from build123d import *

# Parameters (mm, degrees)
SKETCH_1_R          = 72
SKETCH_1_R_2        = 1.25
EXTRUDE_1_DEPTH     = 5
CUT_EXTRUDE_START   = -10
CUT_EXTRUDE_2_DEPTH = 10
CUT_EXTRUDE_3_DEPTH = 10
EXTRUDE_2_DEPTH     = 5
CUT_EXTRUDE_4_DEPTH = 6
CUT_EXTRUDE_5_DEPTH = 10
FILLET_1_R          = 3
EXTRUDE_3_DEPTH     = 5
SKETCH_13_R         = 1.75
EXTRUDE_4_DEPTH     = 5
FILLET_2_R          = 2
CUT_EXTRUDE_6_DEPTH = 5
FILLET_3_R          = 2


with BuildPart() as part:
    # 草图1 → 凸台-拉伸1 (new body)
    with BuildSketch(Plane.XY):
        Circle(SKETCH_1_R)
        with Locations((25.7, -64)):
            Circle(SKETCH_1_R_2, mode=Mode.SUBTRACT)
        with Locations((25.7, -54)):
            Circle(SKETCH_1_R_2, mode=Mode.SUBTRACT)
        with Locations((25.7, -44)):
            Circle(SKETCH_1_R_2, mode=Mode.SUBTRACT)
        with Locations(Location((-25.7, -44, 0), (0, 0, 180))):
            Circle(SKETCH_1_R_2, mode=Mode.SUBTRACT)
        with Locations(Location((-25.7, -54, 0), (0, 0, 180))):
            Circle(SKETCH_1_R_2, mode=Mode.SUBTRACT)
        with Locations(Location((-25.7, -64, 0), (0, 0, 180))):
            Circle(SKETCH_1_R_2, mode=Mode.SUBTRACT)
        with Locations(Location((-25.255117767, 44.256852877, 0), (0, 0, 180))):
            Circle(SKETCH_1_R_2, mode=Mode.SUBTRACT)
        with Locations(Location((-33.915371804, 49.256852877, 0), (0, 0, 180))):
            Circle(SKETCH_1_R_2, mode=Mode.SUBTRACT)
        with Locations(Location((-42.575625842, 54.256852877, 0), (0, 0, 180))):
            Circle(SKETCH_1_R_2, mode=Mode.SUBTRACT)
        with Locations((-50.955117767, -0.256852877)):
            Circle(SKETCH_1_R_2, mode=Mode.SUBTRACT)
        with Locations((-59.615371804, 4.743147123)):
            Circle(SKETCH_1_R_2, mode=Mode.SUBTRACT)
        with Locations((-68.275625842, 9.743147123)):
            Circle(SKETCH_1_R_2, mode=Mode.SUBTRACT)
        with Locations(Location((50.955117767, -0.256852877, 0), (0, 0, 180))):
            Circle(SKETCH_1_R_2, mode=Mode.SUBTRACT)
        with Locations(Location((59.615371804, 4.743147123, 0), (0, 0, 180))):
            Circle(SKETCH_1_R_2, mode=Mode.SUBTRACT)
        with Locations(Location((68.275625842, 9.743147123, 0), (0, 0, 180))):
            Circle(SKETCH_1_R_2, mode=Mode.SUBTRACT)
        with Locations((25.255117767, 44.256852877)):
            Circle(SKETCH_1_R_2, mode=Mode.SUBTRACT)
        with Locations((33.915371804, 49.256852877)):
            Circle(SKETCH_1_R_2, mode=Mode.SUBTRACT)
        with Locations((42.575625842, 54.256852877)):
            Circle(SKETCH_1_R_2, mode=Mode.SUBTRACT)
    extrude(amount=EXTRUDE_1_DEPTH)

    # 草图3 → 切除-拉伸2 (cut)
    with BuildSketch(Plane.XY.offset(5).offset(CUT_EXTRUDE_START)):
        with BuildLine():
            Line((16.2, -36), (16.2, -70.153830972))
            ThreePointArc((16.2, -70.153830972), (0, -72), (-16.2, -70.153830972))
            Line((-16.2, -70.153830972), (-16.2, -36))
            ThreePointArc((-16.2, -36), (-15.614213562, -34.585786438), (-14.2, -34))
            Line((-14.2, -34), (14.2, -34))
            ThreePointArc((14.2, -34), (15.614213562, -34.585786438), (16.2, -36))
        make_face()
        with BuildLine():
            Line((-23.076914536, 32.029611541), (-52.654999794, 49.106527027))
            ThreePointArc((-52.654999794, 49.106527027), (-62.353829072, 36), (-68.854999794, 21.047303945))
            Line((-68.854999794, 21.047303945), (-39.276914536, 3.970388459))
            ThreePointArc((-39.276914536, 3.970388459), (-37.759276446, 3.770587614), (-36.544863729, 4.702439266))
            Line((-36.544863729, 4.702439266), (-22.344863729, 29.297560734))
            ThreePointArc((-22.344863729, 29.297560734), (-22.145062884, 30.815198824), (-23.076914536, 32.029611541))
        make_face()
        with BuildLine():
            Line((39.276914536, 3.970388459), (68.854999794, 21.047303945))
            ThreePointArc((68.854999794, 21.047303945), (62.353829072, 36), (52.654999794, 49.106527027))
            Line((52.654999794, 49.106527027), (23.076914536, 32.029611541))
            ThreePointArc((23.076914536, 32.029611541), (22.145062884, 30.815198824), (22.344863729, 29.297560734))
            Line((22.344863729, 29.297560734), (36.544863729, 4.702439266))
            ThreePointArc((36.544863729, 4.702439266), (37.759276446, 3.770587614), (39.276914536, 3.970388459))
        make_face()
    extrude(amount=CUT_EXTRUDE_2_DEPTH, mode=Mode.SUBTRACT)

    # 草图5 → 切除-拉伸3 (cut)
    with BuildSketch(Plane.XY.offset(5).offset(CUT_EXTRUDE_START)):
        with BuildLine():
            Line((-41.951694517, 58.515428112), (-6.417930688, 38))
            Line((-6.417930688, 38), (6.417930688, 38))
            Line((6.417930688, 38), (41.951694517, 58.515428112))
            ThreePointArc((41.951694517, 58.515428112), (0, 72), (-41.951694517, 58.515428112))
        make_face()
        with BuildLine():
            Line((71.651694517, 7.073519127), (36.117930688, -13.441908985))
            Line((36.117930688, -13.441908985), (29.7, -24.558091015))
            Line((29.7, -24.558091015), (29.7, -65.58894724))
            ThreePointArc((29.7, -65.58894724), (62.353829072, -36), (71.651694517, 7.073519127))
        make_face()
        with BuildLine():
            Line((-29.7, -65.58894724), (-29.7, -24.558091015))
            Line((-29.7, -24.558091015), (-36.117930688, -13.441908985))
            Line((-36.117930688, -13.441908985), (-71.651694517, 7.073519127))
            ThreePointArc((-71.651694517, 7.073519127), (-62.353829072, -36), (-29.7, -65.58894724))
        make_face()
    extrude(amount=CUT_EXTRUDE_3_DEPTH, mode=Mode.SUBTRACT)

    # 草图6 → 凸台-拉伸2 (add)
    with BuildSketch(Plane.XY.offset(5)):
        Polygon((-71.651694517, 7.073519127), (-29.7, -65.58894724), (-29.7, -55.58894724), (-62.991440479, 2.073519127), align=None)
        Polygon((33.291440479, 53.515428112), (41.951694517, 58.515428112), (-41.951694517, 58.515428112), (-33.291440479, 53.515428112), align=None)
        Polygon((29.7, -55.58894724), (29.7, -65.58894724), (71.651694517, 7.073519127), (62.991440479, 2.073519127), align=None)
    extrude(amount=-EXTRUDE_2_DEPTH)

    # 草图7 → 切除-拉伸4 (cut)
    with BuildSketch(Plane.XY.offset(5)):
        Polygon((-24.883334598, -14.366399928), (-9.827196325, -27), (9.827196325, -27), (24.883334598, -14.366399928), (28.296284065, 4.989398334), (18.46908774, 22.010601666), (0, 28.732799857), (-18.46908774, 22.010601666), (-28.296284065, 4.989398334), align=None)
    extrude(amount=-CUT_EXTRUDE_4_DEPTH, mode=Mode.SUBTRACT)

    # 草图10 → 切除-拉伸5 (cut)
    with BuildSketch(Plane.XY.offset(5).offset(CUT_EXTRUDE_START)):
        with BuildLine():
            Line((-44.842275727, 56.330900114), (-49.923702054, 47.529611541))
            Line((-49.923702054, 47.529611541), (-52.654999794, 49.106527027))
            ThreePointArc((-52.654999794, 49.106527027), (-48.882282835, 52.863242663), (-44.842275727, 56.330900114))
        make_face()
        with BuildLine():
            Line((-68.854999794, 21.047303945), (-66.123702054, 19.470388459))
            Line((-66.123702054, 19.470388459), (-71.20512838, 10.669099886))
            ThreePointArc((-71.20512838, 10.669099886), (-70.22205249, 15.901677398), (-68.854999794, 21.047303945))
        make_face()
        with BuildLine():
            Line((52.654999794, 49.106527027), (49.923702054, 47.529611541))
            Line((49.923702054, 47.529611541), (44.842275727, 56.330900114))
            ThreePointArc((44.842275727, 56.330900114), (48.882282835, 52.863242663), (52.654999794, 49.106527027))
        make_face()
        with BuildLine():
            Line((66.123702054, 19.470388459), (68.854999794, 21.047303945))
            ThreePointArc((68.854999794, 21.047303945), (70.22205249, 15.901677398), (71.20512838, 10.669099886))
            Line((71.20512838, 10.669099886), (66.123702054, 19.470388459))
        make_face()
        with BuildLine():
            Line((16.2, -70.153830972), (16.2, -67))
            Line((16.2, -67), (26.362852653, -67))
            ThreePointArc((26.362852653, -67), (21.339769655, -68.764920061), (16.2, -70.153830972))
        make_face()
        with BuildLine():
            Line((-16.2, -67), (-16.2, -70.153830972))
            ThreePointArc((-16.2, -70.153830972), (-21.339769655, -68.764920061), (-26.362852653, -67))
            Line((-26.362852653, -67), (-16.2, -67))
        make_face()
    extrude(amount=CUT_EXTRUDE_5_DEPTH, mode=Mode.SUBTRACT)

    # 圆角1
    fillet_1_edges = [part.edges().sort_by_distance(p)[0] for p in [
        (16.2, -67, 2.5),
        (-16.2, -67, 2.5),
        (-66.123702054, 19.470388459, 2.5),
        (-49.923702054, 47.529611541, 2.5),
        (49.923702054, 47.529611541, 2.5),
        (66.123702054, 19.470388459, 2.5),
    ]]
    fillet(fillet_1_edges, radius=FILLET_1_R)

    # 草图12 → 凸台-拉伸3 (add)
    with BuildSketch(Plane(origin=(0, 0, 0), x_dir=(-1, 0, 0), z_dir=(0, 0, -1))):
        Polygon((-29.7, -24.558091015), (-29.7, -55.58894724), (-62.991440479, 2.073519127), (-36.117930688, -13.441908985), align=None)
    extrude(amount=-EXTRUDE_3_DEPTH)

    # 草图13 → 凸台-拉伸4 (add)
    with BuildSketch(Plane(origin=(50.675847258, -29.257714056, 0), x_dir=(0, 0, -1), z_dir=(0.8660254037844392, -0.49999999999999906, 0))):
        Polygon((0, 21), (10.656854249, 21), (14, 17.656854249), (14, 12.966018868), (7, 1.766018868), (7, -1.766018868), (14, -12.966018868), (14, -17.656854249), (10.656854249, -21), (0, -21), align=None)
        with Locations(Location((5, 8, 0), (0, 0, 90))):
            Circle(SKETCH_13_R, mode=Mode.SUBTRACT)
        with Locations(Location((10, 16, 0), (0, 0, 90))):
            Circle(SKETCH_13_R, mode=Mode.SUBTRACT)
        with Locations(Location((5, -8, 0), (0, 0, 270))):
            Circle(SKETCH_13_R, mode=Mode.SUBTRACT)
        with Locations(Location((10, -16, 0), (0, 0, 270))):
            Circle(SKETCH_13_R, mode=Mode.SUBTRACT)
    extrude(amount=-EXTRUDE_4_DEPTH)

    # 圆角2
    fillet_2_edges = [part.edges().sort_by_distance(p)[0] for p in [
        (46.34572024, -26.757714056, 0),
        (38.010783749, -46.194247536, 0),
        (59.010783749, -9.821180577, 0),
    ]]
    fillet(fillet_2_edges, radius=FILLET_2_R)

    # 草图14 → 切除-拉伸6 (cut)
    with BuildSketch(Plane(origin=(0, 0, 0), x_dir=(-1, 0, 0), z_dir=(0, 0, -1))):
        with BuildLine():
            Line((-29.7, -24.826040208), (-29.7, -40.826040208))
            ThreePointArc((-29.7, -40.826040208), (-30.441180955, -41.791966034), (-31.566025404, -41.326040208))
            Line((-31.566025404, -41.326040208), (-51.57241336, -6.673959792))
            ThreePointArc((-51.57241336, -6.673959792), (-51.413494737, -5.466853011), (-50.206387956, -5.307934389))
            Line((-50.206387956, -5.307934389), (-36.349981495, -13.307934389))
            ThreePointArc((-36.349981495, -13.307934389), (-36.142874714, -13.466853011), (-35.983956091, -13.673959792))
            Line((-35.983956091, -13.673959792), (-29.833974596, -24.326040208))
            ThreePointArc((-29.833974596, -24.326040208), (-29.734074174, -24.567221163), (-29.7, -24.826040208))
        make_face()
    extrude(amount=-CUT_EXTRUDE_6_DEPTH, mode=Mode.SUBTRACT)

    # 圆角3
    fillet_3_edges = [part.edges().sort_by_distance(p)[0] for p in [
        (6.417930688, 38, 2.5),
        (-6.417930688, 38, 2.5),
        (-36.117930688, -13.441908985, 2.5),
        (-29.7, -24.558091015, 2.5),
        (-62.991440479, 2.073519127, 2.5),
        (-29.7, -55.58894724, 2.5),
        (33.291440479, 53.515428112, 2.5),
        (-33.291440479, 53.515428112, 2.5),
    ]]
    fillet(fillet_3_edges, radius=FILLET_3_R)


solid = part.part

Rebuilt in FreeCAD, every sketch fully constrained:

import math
import FreeCAD as App
import Part
import Sketcher

V = App.Vector
Q = App.Units.Quantity


def edges_at(feature, points):
    """Names of the edges that pass closest to the given points."""
    edges = feature.Shape.Edges
    near = lambda p: min(range(len(edges)), key=lambda i: edges[i].distToShape(Part.Vertex(*p))[0])
    return sorted({f"Edge{near(p) + 1}" for p in points})


def add_polygon(sketch, points):
    """Adds a closed chain of lines whose ends are joined by coincident constraints."""
    first, n = sketch.GeometryCount, len(points)
    for a, b in zip(points, points[1:] + points[:1]):
        sketch.addGeometry(Part.LineSegment(App.Vector(*a, 0), App.Vector(*b, 0)), False)
    for i in range(n):
        sketch.addConstraint(Sketcher.Constraint("Coincident", first + i, 2, first + (i + 1) % n, 1))

doc = App.newDocument("Part")
body = doc.addObject("PartDesign::Body", "Body")

# Sketch on XY plane
sketch1 = doc.addObject("Sketcher::SketchObject", "Sketch")
body.addObject(sketch1)
sketch1.AttachmentSupport = (doc.XY_Plane, [""])
sketch1.MapMode = "FlatFace"
sketch1.addGeometry(Part.Circle(V(0, 0, 0), V(0, 0, 1), 72), False)
sketch1.addGeometry(Part.Circle(V(-25.7, -64, 0), V(0, 0, 1), 1.2), False)
sketch1.addGeometry(Part.Circle(V(-25.7, -54, 0), V(0, 0, 1), 1.2), False)
sketch1.addGeometry(Part.Circle(V(-25.7, -44, 0), V(0, 0, 1), 1.2), False)
sketch1.addGeometry(Part.Circle(V(25.7, -64, 0), V(0, 0, 1), 1.2), False)
sketch1.addGeometry(Part.Circle(V(25.7, -54, 0), V(0, 0, 1), 1.2), False)
sketch1.addGeometry(Part.Circle(V(25.7, -44, 0), V(0, 0, 1), 1.2), False)
sketch1.addGeometry(Part.Circle(V(-68.3, 9.7, 0), V(0, 0, 1), 1.2), False)
sketch1.addGeometry(Part.Circle(V(-59.6, 4.7, 0), V(0, 0, 1), 1.2), False)
sketch1.addGeometry(Part.Circle(V(-51, -0.3, 0), V(0, 0, 1), 1.2), False)
sketch1.addGeometry(Part.Circle(V(-42.6, 54.3, 0), V(0, 0, 1), 1.2), False)
sketch1.addGeometry(Part.Circle(V(-25.3, 44.3, 0), V(0, 0, 1), 1.2), False)
sketch1.addGeometry(Part.Circle(V(-33.9, 49.3, 0), V(0, 0, 1), 1.2), False)
sketch1.addGeometry(Part.Circle(V(51, -0.3, 0), V(0, 0, 1), 1.2), False)
sketch1.addGeometry(Part.Circle(V(59.6, 4.7, 0), V(0, 0, 1), 1.2), False)
sketch1.addGeometry(Part.Circle(V(68.3, 9.7, 0), V(0, 0, 1), 1.2), False)
sketch1.addGeometry(Part.Circle(V(25.3, 44.3, 0), V(0, 0, 1), 1.2), False)
sketch1.addGeometry(Part.Circle(V(33.9, 49.3, 0), V(0, 0, 1), 1.2), False)
sketch1.addGeometry(Part.Circle(V(42.6, 54.3, 0), V(0, 0, 1), 1.2), False)
sketch1.addConstraint(Sketcher.Constraint("Coincident", 0, 3, -1, 1))
sketch1.addConstraint(Sketcher.Constraint("Equal", 1, 2))
sketch1.addConstraint(Sketcher.Constraint("Equal", 2, 3))
sketch1.addConstraint(Sketcher.Constraint("Equal", 3, 4))
sketch1.addConstraint(Sketcher.Constraint("Equal", 4, 5))
sketch1.addConstraint(Sketcher.Constraint("Equal", 5, 6))
sketch1.addConstraint(Sketcher.Constraint("Equal", 6, 7))
sketch1.addConstraint(Sketcher.Constraint("Equal", 7, 8))
sketch1.addConstraint(Sketcher.Constraint("Equal", 8, 9))
sketch1.addConstraint(Sketcher.Constraint("Equal", 9, 10))
sketch1.addConstraint(Sketcher.Constraint("Equal", 10, 11))
sketch1.addConstraint(Sketcher.Constraint("Equal", 11, 12))
sketch1.addConstraint(Sketcher.Constraint("Equal", 12, 13))
sketch1.addConstraint(Sketcher.Constraint("Equal", 13, 14))
sketch1.addConstraint(Sketcher.Constraint("Equal", 14, 15))
sketch1.addConstraint(Sketcher.Constraint("Equal", 15, 16))
sketch1.addConstraint(Sketcher.Constraint("Equal", 16, 17))
sketch1.addConstraint(Sketcher.Constraint("Equal", 17, 18))
sketch1.addConstraint(Sketcher.Constraint("Symmetric", 1, 3, 4, 3, -2))
sketch1.addConstraint(Sketcher.Constraint("Symmetric", 2, 3, 5, 3, -2))
sketch1.addConstraint(Sketcher.Constraint("Symmetric", 3, 3, 6, 3, -2))
sketch1.addConstraint(Sketcher.Constraint("Symmetric", 9, 3, 13, 3, -2))
sketch1.addConstraint(Sketcher.Constraint("Symmetric", 8, 3, 14, 3, -2))
sketch1.addConstraint(Sketcher.Constraint("Symmetric", 7, 3, 15, 3, -2))
sketch1.addConstraint(Sketcher.Constraint("Symmetric", 11, 3, 16, 3, -2))
sketch1.addConstraint(Sketcher.Constraint("Symmetric", 12, 3, 17, 3, -2))
sketch1.addConstraint(Sketcher.Constraint("Symmetric", 10, 3, 18, 3, -2))
sketch1.addConstraint(Sketcher.Constraint("Vertical", 1, 3, 2, 3))
sketch1.addConstraint(Sketcher.Constraint("Vertical", 2, 3, 3, 3))
sketch1.addConstraint(Sketcher.Constraint("Diameter", 0, Q("144 mm")))
sketch1.addConstraint(Sketcher.Constraint("Diameter", 1, Q("2.5 mm")))
sketch1.addConstraint(Sketcher.Constraint("DistanceY", 1, 3, -1, 1, Q("64 mm")))
sketch1.addConstraint(Sketcher.Constraint("DistanceY", 2, 3, -1, 1, Q("54 mm")))
sketch1.addConstraint(Sketcher.Constraint("DistanceY", 3, 3, -1, 1, Q("44 mm")))
sketch1.addConstraint(Sketcher.Constraint("DistanceY", 8, 3, 7, 3, Q("5 mm")))
sketch1.addConstraint(Sketcher.Constraint("DistanceY", 9, 3, 8, 3, Q("5 mm")))
sketch1.addConstraint(Sketcher.Constraint("DistanceY", 11, 3, 10, 3, Q("10 mm")))
sketch1.addConstraint(Sketcher.Constraint("DistanceY", 11, 3, 12, 3, Q("5 mm")))
sketch1.addConstraint(Sketcher.Constraint("DistanceX", 1, 3, -1, 1, Q("25.7 mm")))
sketch1.addConstraint(Sketcher.Constraint("DistanceX", 7, 3, 10, 3, Q("25.7 mm")))
sketch1.addConstraint(Sketcher.Constraint("DistanceX", 9, 3, 11, 3, Q("25.7 mm")))
sketch1.addConstraint(Sketcher.Constraint("DistanceX", 8, 3, 12, 3, Q("25.7 mm")))
sketch1.addConstraint(Sketcher.Constraint("DistanceX", 8, 3, -1, 1, Q("59.615372 mm")))
sketch1.addConstraint(Sketcher.Constraint("DistanceX", 7, 3, 9, 3, Q("17.320508 mm")))
sketch1.addConstraint(Sketcher.Constraint("DistanceX", 11, 3, 17, 3, Q("59.17049 mm")))
sketch1.addConstraint(Sketcher.Constraint("DistanceY", -1, 1, 7, 3, Q("9.743147 mm")))
sketch1.addConstraint(Sketcher.Constraint("DistanceY", -1, 1, 10, 3, Q("54.256853 mm")))
pad1 = doc.addObject("PartDesign::Pad", "Pad")
body.addObject(pad1)
pad1.Profile = sketch1
pad1.Length = 5

# Sketch on XY plane
sketch2 = doc.addObject("Sketcher::SketchObject", "Sketch001")
body.addObject(sketch2)
sketch2.AttachmentSupport = (doc.XY_Plane, [""])
sketch2.MapMode = "FlatFace"
sketch2.AttachmentOffset = App.Placement(V(0, 0, -5), App.Rotation())
sketch2.addGeometry(Part.LineSegment(V(16.2, -70.2, 0), V(16.2, -36, 0)), False)
sketch2.addGeometry(Part.ArcOfCircle(Part.Circle(V(14.2, -36, 0), V(0, 0, 1), 2), math.radians(0), math.radians(90)), False)
sketch2.addGeometry(Part.LineSegment(V(14.2, -34, 0), V(-14.2, -34, 0)), False)
sketch2.addGeometry(Part.ArcOfCircle(Part.Circle(V(-14.2, -36, 0), V(0, 0, 1), 2), math.radians(90), math.radians(180)), False)
sketch2.addGeometry(Part.LineSegment(V(-16.2, -36, 0), V(-16.2, -70.2, 0)), False)
sketch2.addGeometry(Part.ArcOfCircle(Part.Circle(V(0, 0, 0), V(0, 0, 1), 72), math.radians(-103), math.radians(-77)), False)
sketch2.addGeometry(Part.LineSegment(V(-23.1, 32, 0), V(-52.7, 49.1, 0)), False)
sketch2.addGeometry(Part.ArcOfCircle(Part.Circle(V(0, 0, 0), V(0, 0, 1), 72), math.radians(137), math.radians(163)), False)
sketch2.addGeometry(Part.LineSegment(V(-68.9, 21, 0), V(-39.3, 4, 0)), False)
sketch2.addGeometry(Part.ArcOfCircle(Part.Circle(V(-38.3, 5.7, 0), V(0, 0, 1), 2), math.radians(-120), math.radians(-30)), False)
sketch2.addGeometry(Part.LineSegment(V(-36.5, 4.7, 0), V(-22.3, 29.3, 0)), False)
sketch2.addGeometry(Part.ArcOfCircle(Part.Circle(V(-24.1, 30.3, 0), V(0, 0, 1), 2), math.radians(-30), math.radians(60)), False)
sketch2.addGeometry(Part.LineSegment(V(39.3, 4, 0), V(68.9, 21, 0)), False)
sketch2.addGeometry(Part.ArcOfCircle(Part.Circle(V(0, 0, 0), V(0, 0, 1), 72), math.radians(17), math.radians(43)), False)
sketch2.addGeometry(Part.LineSegment(V(52.7, 49.1, 0), V(23.1, 32, 0)), False)
sketch2.addGeometry(Part.ArcOfCircle(Part.Circle(V(24.1, 30.3, 0), V(0, 0, 1), 2), math.radians(120), math.radians(210)), False)
sketch2.addGeometry(Part.LineSegment(V(22.3, 29.3, 0), V(36.5, 4.7, 0)), False)
sketch2.addGeometry(Part.ArcOfCircle(Part.Circle(V(38.3, 5.7, 0), V(0, 0, 1), 2), math.radians(-150), math.radians(-60)), False)
sketch2.addConstraint(Sketcher.Constraint("Tangent", 0, 2, 1, 1))
sketch2.addConstraint(Sketcher.Constraint("Tangent", 1, 2, 2, 1))
sketch2.addConstraint(Sketcher.Constraint("Tangent", 2, 2, 3, 1))
sketch2.addConstraint(Sketcher.Constraint("Tangent", 3, 2, 4, 1))
sketch2.addConstraint(Sketcher.Constraint("Coincident", 4, 2, 5, 1))
sketch2.addConstraint(Sketcher.Constraint("Coincident", 5, 2, 0, 1))
sketch2.addConstraint(Sketcher.Constraint("Coincident", 6, 2, 7, 1))
sketch2.addConstraint(Sketcher.Constraint("Coincident", 7, 2, 8, 1))
sketch2.addConstraint(Sketcher.Constraint("Tangent", 8, 2, 9, 1))
sketch2.addConstraint(Sketcher.Constraint("Tangent", 9, 2, 10, 1))
sketch2.addConstraint(Sketcher.Constraint("Tangent", 10, 2, 11, 1))
sketch2.addConstraint(Sketcher.Constraint("Tangent", 11, 2, 6, 1))
sketch2.addConstraint(Sketcher.Constraint("Coincident", 12, 2, 13, 1))
sketch2.addConstraint(Sketcher.Constraint("Coincident", 13, 2, 14, 1))
sketch2.addConstraint(Sketcher.Constraint("Tangent", 14, 2, 15, 1))
sketch2.addConstraint(Sketcher.Constraint("Tangent", 15, 2, 16, 1))
sketch2.addConstraint(Sketcher.Constraint("Tangent", 16, 2, 17, 1))
sketch2.addConstraint(Sketcher.Constraint("Tangent", 17, 2, 12, 1))
sketch2.addConstraint(Sketcher.Constraint("Vertical", 0))
sketch2.addConstraint(Sketcher.Constraint("Horizontal", 2))
sketch2.addConstraint(Sketcher.Constraint("Vertical", 4))
sketch2.addConstraint(Sketcher.Constraint("Coincident", 5, 3, -1, 1))
sketch2.addConstraint(Sketcher.Constraint("Coincident", 7, 3, -1, 1))
sketch2.addConstraint(Sketcher.Constraint("Coincident", 13, 3, -1, 1))
sketch2.addConstraint(Sketcher.Constraint("Equal", 1, 3))
sketch2.addConstraint(Sketcher.Constraint("Equal", 5, 7))
sketch2.addConstraint(Sketcher.Constraint("Equal", 3, 9))
sketch2.addConstraint(Sketcher.Constraint("Equal", 9, 11))
sketch2.addConstraint(Sketcher.Constraint("Equal", 7, 13))
sketch2.addConstraint(Sketcher.Constraint("Equal", 11, 15))
sketch2.addConstraint(Sketcher.Constraint("Equal", 15, 17))
sketch2.addConstraint(Sketcher.Constraint("Symmetric", 11, 3, 15, 3, -2))
sketch2.addConstraint(Sketcher.Constraint("Symmetric", 9, 3, 17, 3, -2))
sketch2.addConstraint(Sketcher.Constraint("Parallel", 6, 8))
sketch2.addConstraint(Sketcher.Constraint("Perpendicular", 8, 10))
sketch2.addConstraint(Sketcher.Constraint("Parallel", 12, 14))
sketch2.addConstraint(Sketcher.Constraint("Perpendicular", 14, 16))
sketch2.addConstraint(Sketcher.Constraint("Horizontal", 4, 2, 5, 2))
sketch2.addConstraint(Sketcher.Constraint("Equal", 6, 8))
sketch2.addConstraint(Sketcher.Constraint("Radius", 1, Q("2 mm")))
sketch2.addConstraint(Sketcher.Constraint("Radius", 5, Q("72 mm")))
sketch2.addConstraint(Sketcher.Constraint("Angle", 6, Q("150 deg")))
sketch2.addConstraint(Sketcher.Constraint("DistanceX", 2, 2, 2, 1, Q("28.4 mm")))
sketch2.addConstraint(Sketcher.Constraint("DistanceY", 1, 3, -1, 1, Q("36 mm")))
sketch2.addConstraint(Sketcher.Constraint("Distance", 10, Q("28.4 mm")))
sketch2.addConstraint(Sketcher.Constraint("Distance", 6, Q("34.153831 mm")))
pocket1 = doc.addObject("PartDesign::Pocket", "Pocket")
body.addObject(pocket1)
pocket1.Profile = sketch2
pocket1.Length = 10
pocket1.Reversed = True

# Sketch on XY plane
sketch3 = doc.addObject("Sketcher::SketchObject", "Sketch002")
body.addObject(sketch3)
sketch3.AttachmentSupport = (doc.XY_Plane, [""])
sketch3.MapMode = "FlatFace"
sketch3.AttachmentOffset = App.Placement(V(0, 0, -5), App.Rotation())
sketch3.addGeometry(Part.LineSegment(V(-42, 59, 0), V(-6, 38, 0)), False)
sketch3.addGeometry(Part.LineSegment(V(-6, 38, 0), V(6, 38, 0)), False)
sketch3.addGeometry(Part.LineSegment(V(6, 38, 0), V(42, 59, 0)), False)
sketch3.addGeometry(Part.ArcOfCircle(Part.Circle(V(0, 0, 0), V(0, 0, 1), 72), math.radians(54), math.radians(126)), False)
sketch3.addGeometry(Part.LineSegment(V(72, 7, 0), V(36, -13, 0)), False)
sketch3.addGeometry(Part.LineSegment(V(36, -13, 0), V(30, -25, 0)), False)
sketch3.addGeometry(Part.LineSegment(V(30, -25, 0), V(30, -66, 0)), False)
sketch3.addGeometry(Part.ArcOfCircle(Part.Circle(V(0, 0, 0), V(0, 0, 1), 72), math.radians(-66), math.radians(6)), False)
sketch3.addGeometry(Part.LineSegment(V(-30, -66, 0), V(-30, -25, 0)), False)
sketch3.addGeometry(Part.LineSegment(V(-30, -25, 0), V(-36, -13, 0)), False)
sketch3.addGeometry(Part.LineSegment(V(-36, -13, 0), V(-72, 7, 0)), False)
sketch3.addGeometry(Part.ArcOfCircle(Part.Circle(V(0, 0, 0), V(0, 0, 1), 72), math.radians(174), math.radians(246)), False)
sketch3.addConstraint(Sketcher.Constraint("Coincident", 0, 2, 1, 1))
sketch3.addConstraint(Sketcher.Constraint("Coincident", 1, 2, 2, 1))
sketch3.addConstraint(Sketcher.Constraint("Coincident", 2, 2, 3, 1))
sketch3.addConstraint(Sketcher.Constraint("Coincident", 3, 2, 0, 1))
sketch3.addConstraint(Sketcher.Constraint("Coincident", 4, 2, 5, 1))
sketch3.addConstraint(Sketcher.Constraint("Coincident", 5, 2, 6, 1))
sketch3.addConstraint(Sketcher.Constraint("Coincident", 6, 2, 7, 1))
sketch3.addConstraint(Sketcher.Constraint("Coincident", 7, 2, 4, 1))
sketch3.addConstraint(Sketcher.Constraint("Coincident", 8, 2, 9, 1))
sketch3.addConstraint(Sketcher.Constraint("Coincident", 9, 2, 10, 1))
sketch3.addConstraint(Sketcher.Constraint("Coincident", 10, 2, 11, 1))
sketch3.addConstraint(Sketcher.Constraint("Coincident", 11, 2, 8, 1))
sketch3.addConstraint(Sketcher.Constraint("Horizontal", 1))
sketch3.addConstraint(Sketcher.Constraint("Vertical", 6))
sketch3.addConstraint(Sketcher.Constraint("Vertical", 8))
sketch3.addConstraint(Sketcher.Constraint("Coincident", 3, 3, -1, 1))
sketch3.addConstraint(Sketcher.Constraint("Coincident", 7, 3, -1, 1))
sketch3.addConstraint(Sketcher.Constraint("Coincident", 11, 3, -1, 1))
sketch3.addConstraint(Sketcher.Constraint("Equal", 3, 7))
sketch3.addConstraint(Sketcher.Constraint("Equal", 7, 11))
sketch3.addConstraint(Sketcher.Constraint("Symmetric", 5, 2, 8, 2, -2))
sketch3.addConstraint(Sketcher.Constraint("Symmetric", 4, 2, 9, 2, -2))
sketch3.addConstraint(Sketcher.Constraint("Parallel", 2, 4))
sketch3.addConstraint(Sketcher.Constraint("Perpendicular", 0, 5))
sketch3.addConstraint(Sketcher.Constraint("Perpendicular", 4, 9))
sketch3.addConstraint(Sketcher.Constraint("Perpendicular", 5, 10))
sketch3.addConstraint(Sketcher.Constraint("Horizontal", 2, 2, 3, 2))
sketch3.addConstraint(Sketcher.Constraint("Equal", 2, 4))
sketch3.addConstraint(Sketcher.Constraint("Radius", 3, Q("72 mm")))
sketch3.addConstraint(Sketcher.Constraint("Angle", 0, Q("-30 deg")))
sketch3.addConstraint(Sketcher.Constraint("DistanceY", -1, 1, 0, 2, Q("38 mm")))
sketch3.addConstraint(Sketcher.Constraint("DistanceX", -1, 1, 5, 2, Q("29.7 mm")))
sketch3.addConstraint(Sketcher.Constraint("DistanceX", 1, 2, 4, 2, Q("29.7 mm")))
sketch3.addConstraint(Sketcher.Constraint("DistanceX", 1, 1, 1, 2, Q("12.835861 mm")))
pocket2 = doc.addObject("PartDesign::Pocket", "Pocket001")
body.addObject(pocket2)
pocket2.Profile = sketch3
pocket2.Length = 10
pocket2.Reversed = True

# Sketch on XY plane
sketch4 = doc.addObject("Sketcher::SketchObject", "Sketch003")
body.addObject(sketch4)
sketch4.AttachmentSupport = (doc.XY_Plane, [""])
sketch4.MapMode = "FlatFace"
sketch4.AttachmentOffset = App.Placement(V(0, 0, 5), App.Rotation())
add_polygon(sketch4, [(-72, 7), (-30, -66), (-30, -56), (-63, 2)])  # lines 0-3
add_polygon(sketch4, [(33, 54), (42, 59), (-42, 59), (-33, 54)])  # lines 4-7
add_polygon(sketch4, [(30, -56), (30, -66), (72, 7), (63, 2)])  # lines 8-11
sketch4.addConstraint(Sketcher.Constraint("Vertical", 1))
sketch4.addConstraint(Sketcher.Constraint("Horizontal", 5))
sketch4.addConstraint(Sketcher.Constraint("Horizontal", 7))
sketch4.addConstraint(Sketcher.Constraint("Vertical", 8))
sketch4.addConstraint(Sketcher.Constraint("Symmetric", 0, 2, 8, 2, -2))
sketch4.addConstraint(Sketcher.Constraint("Symmetric", 3, 2, 9, 2, -2))
sketch4.addConstraint(Sketcher.Constraint("Symmetric", 2, 2, 10, 2, -2))
sketch4.addConstraint(Sketcher.Constraint("Parallel", 0, 2))
sketch4.addConstraint(Sketcher.Constraint("Perpendicular", 2, 4))
sketch4.addConstraint(Sketcher.Constraint("Parallel", 3, 6))
sketch4.addConstraint(Sketcher.Constraint("Perpendicular", 6, 9))
sketch4.addConstraint(Sketcher.Constraint("Parallel", 9, 11))
sketch4.addConstraint(Sketcher.Constraint("Equal", 3, 4))
sketch4.addConstraint(Sketcher.Constraint("DistanceY", 1, 1, 1, 2, Q("10 mm")))
sketch4.addConstraint(Sketcher.Constraint("Angle", 0, Q("-60 deg")))
sketch4.addConstraint(Sketcher.Constraint("DistanceX", 0, 2, -1, 1, Q("29.7 mm")))
sketch4.addConstraint(Sketcher.Constraint("DistanceX", 3, 2, 5, 2, Q("29.7 mm")))
sketch4.addConstraint(Sketcher.Constraint("DistanceX", 4, 2, 9, 2, Q("29.7 mm")))
sketch4.addConstraint(Sketcher.Constraint("DistanceX", 5, 2, 5, 1, Q("83.903389 mm")))
sketch4.addConstraint(Sketcher.Constraint("DistanceY", -1, 1, 2, 2, Q("2.073519 mm")))
sketch4.addConstraint(Sketcher.Constraint("DistanceY", -1, 1, 4, 2, Q("58.515428 mm")))
pad2 = doc.addObject("PartDesign::Pad", "Pad001")
body.addObject(pad2)
pad2.Profile = sketch4
pad2.Length = 5
pad2.Reversed = True

# Sketch on XY plane
sketch5 = doc.addObject("Sketcher::SketchObject", "Sketch004")
body.addObject(sketch5)
sketch5.AttachmentSupport = (doc.XY_Plane, [""])
sketch5.MapMode = "FlatFace"
sketch5.AttachmentOffset = App.Placement(V(0, 0, 5), App.Rotation())
add_polygon(sketch5, [(-25, -14), (-10, -27), (10, -27), (25, -14), (28, 5), (18, 22), (0, 29), (-18, 22), (-28, 5)])  # lines 0-8
sketch5.addConstraint(Sketcher.Constraint("Horizontal", 1))
sketch5.addConstraint(Sketcher.Constraint("Symmetric", 4, 2, 6, 2, -2))
sketch5.addConstraint(Sketcher.Constraint("Symmetric", 3, 2, 7, 2, -2))
sketch5.addConstraint(Sketcher.Constraint("Symmetric", 2, 2, 8, 2, -2))
sketch5.addConstraint(Sketcher.Constraint("PointOnObject", 5, 2, -2))
sketch5.addConstraint(Sketcher.Constraint("Equal", 0, 2))
sketch5.addConstraint(Sketcher.Constraint("Equal", 2, 3))
sketch5.addConstraint(Sketcher.Constraint("Equal", 3, 4))
sketch5.addConstraint(Sketcher.Constraint("Equal", 4, 5))
sketch5.addConstraint(Sketcher.Constraint("Angle", 0, Q("-40 deg")))
sketch5.addConstraint(Sketcher.Constraint("Angle", 3, Q("80 deg")))
sketch5.addConstraint(Sketcher.Constraint("Angle", 4, Q("120 deg")))
sketch5.addConstraint(Sketcher.Constraint("Angle", 5, Q("160 deg")))
sketch5.addConstraint(Sketcher.Constraint("DistanceY", 0, 2, -1, 1, Q("27 mm")))
sketch5.addConstraint(Sketcher.Constraint("DistanceY", 2, 2, 4, 2, Q("36.377002 mm")))
pocket3 = doc.addObject("PartDesign::Pocket", "Pocket002")
body.addObject(pocket3)
pocket3.Profile = sketch5
pocket3.Length = 6

# Sketch on XY plane
sketch6 = doc.addObject("Sketcher::SketchObject", "Sketch005")
body.addObject(sketch6)
sketch6.AttachmentSupport = (doc.XY_Plane, [""])
sketch6.MapMode = "FlatFace"
sketch6.AttachmentOffset = App.Placement(V(0, 0, -5), App.Rotation())
sketch6.addGeometry(Part.LineSegment(V(-49.9, 47.5, 0), V(-44.8, 56.3, 0)), False)
sketch6.addGeometry(Part.ArcOfCircle(Part.Circle(V(0, 0, 0), V(0, 0, 1), 72), math.radians(128.52), math.radians(137)), False)
sketch6.addGeometry(Part.LineSegment(V(-52.7, 49.1, 0), V(-49.9, 47.5, 0)), False)
sketch6.addGeometry(Part.LineSegment(V(-66.1, 19.5, 0), V(-68.9, 21, 0)), False)
sketch6.addGeometry(Part.ArcOfCircle(Part.Circle(V(0, 0, 0), V(0, 0, 1), 72), math.radians(163), math.radians(171.48)), False)
sketch6.addGeometry(Part.LineSegment(V(-71.2, 10.7, 0), V(-66.1, 19.5, 0)), False)
sketch6.addGeometry(Part.LineSegment(V(49.9, 47.5, 0), V(52.7, 49.1, 0)), False)
sketch6.addGeometry(Part.ArcOfCircle(Part.Circle(V(0, 0, 0), V(0, 0, 1), 72), math.radians(43), math.radians(51.48)), False)
sketch6.addGeometry(Part.LineSegment(V(44.8, 56.3, 0), V(49.9, 47.5, 0)), False)
sketch6.addGeometry(Part.LineSegment(V(68.9, 21, 0), V(66.1, 19.5, 0)), False)
sketch6.addGeometry(Part.LineSegment(V(66.1, 19.5, 0), V(71.2, 10.7, 0)), False)
sketch6.addGeometry(Part.ArcOfCircle(Part.Circle(V(0, 0, 0), V(0, 0, 1), 72), math.radians(8.52), math.radians(17)), False)
sketch6.addGeometry(Part.LineSegment(V(16.2, -67, 0), V(16.2, -70.2, 0)), False)
sketch6.addGeometry(Part.ArcOfCircle(Part.Circle(V(0, 0, 0), V(0, 0, 1), 72), math.radians(-77), math.radians(-68.52)), False)
sketch6.addGeometry(Part.LineSegment(V(26.4, -67, 0), V(16.2, -67, 0)), False)
sketch6.addGeometry(Part.LineSegment(V(-16.2, -70.2, 0), V(-16.2, -67, 0)), False)
sketch6.addGeometry(Part.LineSegment(V(-16.2, -67, 0), V(-26.4, -67, 0)), False)
sketch6.addGeometry(Part.ArcOfCircle(Part.Circle(V(0, 0, 0), V(0, 0, 1), 72), math.radians(-111.48), math.radians(-103)), False)
sketch6.addConstraint(Sketcher.Constraint("Coincident", 0, 2, 1, 1))
sketch6.addConstraint(Sketcher.Constraint("Coincident", 1, 2, 2, 1))
sketch6.addConstraint(Sketcher.Constraint("Coincident", 2, 2, 0, 1))
sketch6.addConstraint(Sketcher.Constraint("Coincident", 3, 2, 4, 1))
sketch6.addConstraint(Sketcher.Constraint("Coincident", 4, 2, 5, 1))
sketch6.addConstraint(Sketcher.Constraint("Coincident", 5, 2, 3, 1))
sketch6.addConstraint(Sketcher.Constraint("Coincident", 6, 2, 7, 1))
sketch6.addConstraint(Sketcher.Constraint("Coincident", 7, 2, 8, 1))
sketch6.addConstraint(Sketcher.Constraint("Coincident", 8, 2, 6, 1))
sketch6.addConstraint(Sketcher.Constraint("Coincident", 9, 2, 10, 1))
sketch6.addConstraint(Sketcher.Constraint("Coincident", 10, 2, 11, 1))
sketch6.addConstraint(Sketcher.Constraint("Coincident", 11, 2, 9, 1))
sketch6.addConstraint(Sketcher.Constraint("Coincident", 12, 2, 13, 1))
sketch6.addConstraint(Sketcher.Constraint("Coincident", 13, 2, 14, 1))
sketch6.addConstraint(Sketcher.Constraint("Coincident", 14, 2, 12, 1))
sketch6.addConstraint(Sketcher.Constraint("Coincident", 15, 2, 16, 1))
sketch6.addConstraint(Sketcher.Constraint("Coincident", 16, 2, 17, 1))
sketch6.addConstraint(Sketcher.Constraint("Coincident", 17, 2, 15, 1))
sketch6.addConstraint(Sketcher.Constraint("Vertical", 12))
sketch6.addConstraint(Sketcher.Constraint("Horizontal", 14))
sketch6.addConstraint(Sketcher.Constraint("Vertical", 15))
sketch6.addConstraint(Sketcher.Constraint("Horizontal", 16))
sketch6.addConstraint(Sketcher.Constraint("Coincident", 1, 3, -1, 1))
sketch6.addConstraint(Sketcher.Constraint("Coincident", 4, 3, -1, 1))
sketch6.addConstraint(Sketcher.Constraint("Coincident", 7, 3, -1, 1))
sketch6.addConstraint(Sketcher.Constraint("Coincident", 11, 3, -1, 1))
sketch6.addConstraint(Sketcher.Constraint("Coincident", 13, 3, -1, 1))
sketch6.addConstraint(Sketcher.Constraint("Coincident", 17, 3, -1, 1))
sketch6.addConstraint(Sketcher.Constraint("Equal", 1, 4))
sketch6.addConstraint(Sketcher.Constraint("Equal", 4, 7))
sketch6.addConstraint(Sketcher.Constraint("Equal", 7, 11))
sketch6.addConstraint(Sketcher.Constraint("Equal", 11, 13))
sketch6.addConstraint(Sketcher.Constraint("Equal", 13, 17))
sketch6.addConstraint(Sketcher.Constraint("Symmetric", 2, 2, 8, 2, -2))
sketch6.addConstraint(Sketcher.Constraint("Symmetric", 5, 2, 9, 2, -2))
sketch6.addConstraint(Sketcher.Constraint("Symmetric", 14, 2, 15, 2, -2))
sketch6.addConstraint(Sketcher.Constraint("Perpendicular", 0, 2))
sketch6.addConstraint(Sketcher.Constraint("Parallel", 2, 3))
sketch6.addConstraint(Sketcher.Constraint("Perpendicular", 3, 5))
sketch6.addConstraint(Sketcher.Constraint("Perpendicular", 6, 8))
sketch6.addConstraint(Sketcher.Constraint("Perpendicular", 8, 9))
sketch6.addConstraint(Sketcher.Constraint("Perpendicular", 9, 10))
sketch6.addConstraint(Sketcher.Constraint("Horizontal", 0, 2, 7, 2))
sketch6.addConstraint(Sketcher.Constraint("Equal", 2, 3))
sketch6.addConstraint(Sketcher.Constraint("Equal", 0, 5))
sketch6.addConstraint(Sketcher.Constraint("Radius", 1, Q("72 mm")))
sketch6.addConstraint(Sketcher.Constraint("Angle", 0, Q("60 deg")))
sketch6.addConstraint(Sketcher.Constraint("DistanceY", 13, 2, -1, 1, Q("67 mm")))
sketch6.addConstraint(Sketcher.Constraint("DistanceX", -1, 1, 12, 2, Q("16.2 mm")))
sketch6.addConstraint(Sketcher.Constraint("DistanceX", 3, 2, 1, 2, Q("16.2 mm")))
sketch6.addConstraint(Sketcher.Constraint("DistanceY", -1, 1, 0, 2, Q("56.3309 mm")))
pocket4 = doc.addObject("PartDesign::Pocket", "Pocket003")
body.addObject(pocket4)
pocket4.Profile = sketch6
pocket4.Length = 10
pocket4.Reversed = True
doc.recompute()

fillet = doc.addObject("PartDesign::Fillet", "Fillet")
body.addObject(fillet)
fillet.Base = (pocket4, edges_at(pocket4, [
    (16.2, -67, 2.5),
    (-16.2, -67, 2.5),
    (-66.124, 19.47, 2.5),
    (-49.924, 47.53, 2.5),
    (49.924, 47.53, 2.5),
    (66.124, 19.47, 2.5),
]))
fillet.Radius = 3

# Sketch on XY plane
sketch7 = doc.addObject("Sketcher::SketchObject", "Sketch006")
body.addObject(sketch7)
sketch7.AttachmentSupport = (doc.XY_Plane, [""])
sketch7.MapMode = "FlatFace"
add_polygon(sketch7, [(30, -56), (30, -25), (36, -13), (63, 2)])  # lines 0-3
sketch7.addConstraint(Sketcher.Constraint("Vertical", 0))
sketch7.addConstraint(Sketcher.Constraint("Parallel", 1, 3))
sketch7.addConstraint(Sketcher.Constraint("Angle", 1, Q("60 deg")))
sketch7.addConstraint(Sketcher.Constraint("Angle", 2, Q("30 deg")))
sketch7.addConstraint(Sketcher.Constraint("DistanceX", -1, 1, 0, 2, Q("29.7 mm")))
sketch7.addConstraint(Sketcher.Constraint("Distance", 1, Q("12.835861 mm")))
sketch7.addConstraint(Sketcher.Constraint("Distance", 3, Q("66.582881 mm")))
sketch7.addConstraint(Sketcher.Constraint("DistanceY", 0, 2, -1, 1, Q("24.558091 mm")))
pad3 = doc.addObject("PartDesign::Pad", "Pad002")
body.addObject(pad3)
pad3.Profile = sketch7
pad3.Length = 5

# Sketch on an angled plane
sketch8 = doc.addObject("Sketcher::SketchObject", "Sketch007")
body.addObject(sketch8)
sketch8.Placement = App.Placement(V(50.675847, -29.257714, 0), App.Rotation(V(0, 0, -1), V(0.5, 0.866025404, 0), V(0.866025404, -0.5, 0), "ZXY"))
add_polygon(sketch8, [(10.7, 21), (0, 21), (0, -21), (10.7, -21), (14, -17.7), (14, -13), (7, -1.8), (7, 1.8), (14, 13), (14, 17.7)])  # lines 0-9
sketch8.addGeometry(Part.Circle(V(10, -16, 0), V(0, 0, 1), 1.8), False)  # 10
sketch8.addGeometry(Part.Circle(V(5, -8, 0), V(0, 0, 1), 1.8), False)  # 11
sketch8.addGeometry(Part.Circle(V(10, 16, 0), V(0, 0, 1), 1.8), False)  # 12
sketch8.addGeometry(Part.Circle(V(5, 8, 0), V(0, 0, 1), 1.8), False)  # 13
sketch8.addConstraint(Sketcher.Constraint("Horizontal", 0))
sketch8.addConstraint(Sketcher.Constraint("Vertical", 1))
sketch8.addConstraint(Sketcher.Constraint("Horizontal", 2))
sketch8.addConstraint(Sketcher.Constraint("Vertical", 4))
sketch8.addConstraint(Sketcher.Constraint("Vertical", 6))
sketch8.addConstraint(Sketcher.Constraint("Vertical", 8))
sketch8.addConstraint(Sketcher.Constraint("Equal", 10, 11))
sketch8.addConstraint(Sketcher.Constraint("Equal", 11, 12))
sketch8.addConstraint(Sketcher.Constraint("Equal", 12, 13))
sketch8.addConstraint(Sketcher.Constraint("Symmetric", 0, 2, 1, 2, -1, 1))
sketch8.addConstraint(Sketcher.Constraint("Symmetric", 10, 3, 12, 3, -1))
sketch8.addConstraint(Sketcher.Constraint("Symmetric", 11, 3, 13, 3, -1))
sketch8.addConstraint(Sketcher.Constraint("Symmetric", 4, 2, 7, 2, -1))
sketch8.addConstraint(Sketcher.Constraint("Perpendicular", 3, 9))
sketch8.addConstraint(Sketcher.Constraint("Vertical", 2, 2, 9, 2))
sketch8.addConstraint(Sketcher.Constraint("Equal", 4, 8))
sketch8.addConstraint(Sketcher.Constraint("Equal", 5, 7))
sketch8.addConstraint(Sketcher.Constraint("Diameter", 10, Q("3.5 mm")))
sketch8.addConstraint(Sketcher.Constraint("DistanceY", 1, 2, 1, 1, Q("42 mm")))
sketch8.addConstraint(Sketcher.Constraint("DistanceX", -1, 1, 10, 3, Q("10 mm")))
sketch8.addConstraint(Sketcher.Constraint("DistanceY", 10, 3, -1, 1, Q("16 mm")))
sketch8.addConstraint(Sketcher.Constraint("DistanceX", -1, 1, 11, 3, Q("5 mm")))
sketch8.addConstraint(Sketcher.Constraint("DistanceY", 11, 3, -1, 1, Q("8 mm")))
sketch8.addConstraint(Sketcher.Constraint("DistanceX", -1, 1, 3, 2, Q("14 mm")))
sketch8.addConstraint(Sketcher.Constraint("DistanceX", -1, 1, 5, 2, Q("7 mm")))
sketch8.addConstraint(Sketcher.Constraint("DistanceY", 4, 2, 5, 2, Q("11.2 mm")))
sketch8.addConstraint(Sketcher.Constraint("DistanceX", 0, 2, 0, 1, Q("10.656854 mm")))
sketch8.addConstraint(Sketcher.Constraint("DistanceY", 4, 1, 4, 2, Q("4.690835 mm")))
pad4 = doc.addObject("PartDesign::Pad", "Pad003")
body.addObject(pad4)
pad4.Profile = sketch8
pad4.Length = 5
pad4.Reversed = True
doc.recompute()

fillet2 = doc.addObject("PartDesign::Fillet", "Fillet001")
body.addObject(fillet2)
fillet2.Base = (pad4, edges_at(pad4, [(46.346, -26.758, 0), (38.011, -46.194, 0), (59.011, -9.821, 0)]))
fillet2.Radius = 2

# Sketch on XY plane
sketch9 = doc.addObject("Sketcher::SketchObject", "Sketch008")
body.addObject(sketch9)
sketch9.AttachmentSupport = (doc.XY_Plane, [""])
sketch9.MapMode = "FlatFace"
sketch9.addGeometry(Part.LineSegment(V(29.7, -40.8, 0), V(29.7, -24.8, 0)), False)
sketch9.addGeometry(Part.ArcOfCircle(Part.Circle(V(30.7, -24.8, 0), V(0, 0, 1), 1), math.radians(150), math.radians(180)), False)
sketch9.addGeometry(Part.LineSegment(V(29.8, -24.3, 0), V(36, -13.7, 0)), False)
sketch9.addGeometry(Part.ArcOfCircle(Part.Circle(V(36.8, -14.2, 0), V(0, 0, 1), 1), math.radians(120), math.radians(150)), False)
sketch9.addGeometry(Part.LineSegment(V(36.3, -13.3, 0), V(50.2, -5.3, 0)), False)
sketch9.addGeometry(Part.ArcOfCircle(Part.Circle(V(50.7, -6.2, 0), V(0, 0, 1), 1), math.radians(-30), math.radians(120)), False)
sketch9.addGeometry(Part.LineSegment(V(51.6, -6.7, 0), V(31.6, -41.3, 0)), False)
sketch9.addGeometry(Part.ArcOfCircle(Part.Circle(V(30.7, -40.8, 0), V(0, 0, 1), 1), math.radians(180), math.radians(330)), False)
sketch9.addConstraint(Sketcher.Constraint("Tangent", 0, 2, 1, 2))
sketch9.addConstraint(Sketcher.Constraint("Tangent", 1, 1, 2, 1))
sketch9.addConstraint(Sketcher.Constraint("Tangent", 2, 2, 3, 2))
sketch9.addConstraint(Sketcher.Constraint("Tangent", 3, 1, 4, 1))
sketch9.addConstraint(Sketcher.Constraint("Tangent", 4, 2, 5, 2))
sketch9.addConstraint(Sketcher.Constraint("Tangent", 5, 1, 6, 1))
sketch9.addConstraint(Sketcher.Constraint("Tangent", 6, 2, 7, 2))
sketch9.addConstraint(Sketcher.Constraint("Tangent", 7, 1, 0, 1))
sketch9.addConstraint(Sketcher.Constraint("Vertical", 0))
sketch9.addConstraint(Sketcher.Constraint("Equal", 1, 3))
sketch9.addConstraint(Sketcher.Constraint("Equal", 3, 5))
sketch9.addConstraint(Sketcher.Constraint("Equal", 5, 7))
sketch9.addConstraint(Sketcher.Constraint("Parallel", 2, 6))
sketch9.addConstraint(Sketcher.Constraint("Radius", 1, Q("1 mm")))
sketch9.addConstraint(Sketcher.Constraint("DistanceY", 0, 1, 0, 2, Q("16 mm")))
sketch9.addConstraint(Sketcher.Constraint("Angle", 2, Q("60 deg")))
sketch9.addConstraint(Sketcher.Constraint("Angle", 4, Q("30 deg")))
sketch9.addConstraint(Sketcher.Constraint("DistanceX", -1, 1, 1, 3, Q("30.7 mm")))
sketch9.addConstraint(Sketcher.Constraint("DistanceY", 1, 3, -1, 1, Q("24.82604 mm")))
sketch9.addConstraint(Sketcher.Constraint("DistanceX", -1, 1, 3, 3, Q("36.849981 mm")))
pocket5 = doc.addObject("PartDesign::Pocket", "Pocket004")
body.addObject(pocket5)
pocket5.Profile = sketch9
pocket5.Length = 5
pocket5.Reversed = True
doc.recompute()

fillet3 = doc.addObject("PartDesign::Fillet", "Fillet002")
body.addObject(fillet3)
fillet3.Base = (pocket5, edges_at(pocket5, [
    (6.418, 38, 2.5),
    (-6.418, 38, 2.5),
    (-36.118, -13.442, 2.5),
    (-29.7, -24.558, 2.5),
    (-62.991, 2.074, 2.5),
    (-29.7, -55.589, 2.5),
    (33.291, 53.515, 2.5),
    (-33.291, 53.515, 2.5),
]))
fillet3.Radius = 2

doc.recompute()
